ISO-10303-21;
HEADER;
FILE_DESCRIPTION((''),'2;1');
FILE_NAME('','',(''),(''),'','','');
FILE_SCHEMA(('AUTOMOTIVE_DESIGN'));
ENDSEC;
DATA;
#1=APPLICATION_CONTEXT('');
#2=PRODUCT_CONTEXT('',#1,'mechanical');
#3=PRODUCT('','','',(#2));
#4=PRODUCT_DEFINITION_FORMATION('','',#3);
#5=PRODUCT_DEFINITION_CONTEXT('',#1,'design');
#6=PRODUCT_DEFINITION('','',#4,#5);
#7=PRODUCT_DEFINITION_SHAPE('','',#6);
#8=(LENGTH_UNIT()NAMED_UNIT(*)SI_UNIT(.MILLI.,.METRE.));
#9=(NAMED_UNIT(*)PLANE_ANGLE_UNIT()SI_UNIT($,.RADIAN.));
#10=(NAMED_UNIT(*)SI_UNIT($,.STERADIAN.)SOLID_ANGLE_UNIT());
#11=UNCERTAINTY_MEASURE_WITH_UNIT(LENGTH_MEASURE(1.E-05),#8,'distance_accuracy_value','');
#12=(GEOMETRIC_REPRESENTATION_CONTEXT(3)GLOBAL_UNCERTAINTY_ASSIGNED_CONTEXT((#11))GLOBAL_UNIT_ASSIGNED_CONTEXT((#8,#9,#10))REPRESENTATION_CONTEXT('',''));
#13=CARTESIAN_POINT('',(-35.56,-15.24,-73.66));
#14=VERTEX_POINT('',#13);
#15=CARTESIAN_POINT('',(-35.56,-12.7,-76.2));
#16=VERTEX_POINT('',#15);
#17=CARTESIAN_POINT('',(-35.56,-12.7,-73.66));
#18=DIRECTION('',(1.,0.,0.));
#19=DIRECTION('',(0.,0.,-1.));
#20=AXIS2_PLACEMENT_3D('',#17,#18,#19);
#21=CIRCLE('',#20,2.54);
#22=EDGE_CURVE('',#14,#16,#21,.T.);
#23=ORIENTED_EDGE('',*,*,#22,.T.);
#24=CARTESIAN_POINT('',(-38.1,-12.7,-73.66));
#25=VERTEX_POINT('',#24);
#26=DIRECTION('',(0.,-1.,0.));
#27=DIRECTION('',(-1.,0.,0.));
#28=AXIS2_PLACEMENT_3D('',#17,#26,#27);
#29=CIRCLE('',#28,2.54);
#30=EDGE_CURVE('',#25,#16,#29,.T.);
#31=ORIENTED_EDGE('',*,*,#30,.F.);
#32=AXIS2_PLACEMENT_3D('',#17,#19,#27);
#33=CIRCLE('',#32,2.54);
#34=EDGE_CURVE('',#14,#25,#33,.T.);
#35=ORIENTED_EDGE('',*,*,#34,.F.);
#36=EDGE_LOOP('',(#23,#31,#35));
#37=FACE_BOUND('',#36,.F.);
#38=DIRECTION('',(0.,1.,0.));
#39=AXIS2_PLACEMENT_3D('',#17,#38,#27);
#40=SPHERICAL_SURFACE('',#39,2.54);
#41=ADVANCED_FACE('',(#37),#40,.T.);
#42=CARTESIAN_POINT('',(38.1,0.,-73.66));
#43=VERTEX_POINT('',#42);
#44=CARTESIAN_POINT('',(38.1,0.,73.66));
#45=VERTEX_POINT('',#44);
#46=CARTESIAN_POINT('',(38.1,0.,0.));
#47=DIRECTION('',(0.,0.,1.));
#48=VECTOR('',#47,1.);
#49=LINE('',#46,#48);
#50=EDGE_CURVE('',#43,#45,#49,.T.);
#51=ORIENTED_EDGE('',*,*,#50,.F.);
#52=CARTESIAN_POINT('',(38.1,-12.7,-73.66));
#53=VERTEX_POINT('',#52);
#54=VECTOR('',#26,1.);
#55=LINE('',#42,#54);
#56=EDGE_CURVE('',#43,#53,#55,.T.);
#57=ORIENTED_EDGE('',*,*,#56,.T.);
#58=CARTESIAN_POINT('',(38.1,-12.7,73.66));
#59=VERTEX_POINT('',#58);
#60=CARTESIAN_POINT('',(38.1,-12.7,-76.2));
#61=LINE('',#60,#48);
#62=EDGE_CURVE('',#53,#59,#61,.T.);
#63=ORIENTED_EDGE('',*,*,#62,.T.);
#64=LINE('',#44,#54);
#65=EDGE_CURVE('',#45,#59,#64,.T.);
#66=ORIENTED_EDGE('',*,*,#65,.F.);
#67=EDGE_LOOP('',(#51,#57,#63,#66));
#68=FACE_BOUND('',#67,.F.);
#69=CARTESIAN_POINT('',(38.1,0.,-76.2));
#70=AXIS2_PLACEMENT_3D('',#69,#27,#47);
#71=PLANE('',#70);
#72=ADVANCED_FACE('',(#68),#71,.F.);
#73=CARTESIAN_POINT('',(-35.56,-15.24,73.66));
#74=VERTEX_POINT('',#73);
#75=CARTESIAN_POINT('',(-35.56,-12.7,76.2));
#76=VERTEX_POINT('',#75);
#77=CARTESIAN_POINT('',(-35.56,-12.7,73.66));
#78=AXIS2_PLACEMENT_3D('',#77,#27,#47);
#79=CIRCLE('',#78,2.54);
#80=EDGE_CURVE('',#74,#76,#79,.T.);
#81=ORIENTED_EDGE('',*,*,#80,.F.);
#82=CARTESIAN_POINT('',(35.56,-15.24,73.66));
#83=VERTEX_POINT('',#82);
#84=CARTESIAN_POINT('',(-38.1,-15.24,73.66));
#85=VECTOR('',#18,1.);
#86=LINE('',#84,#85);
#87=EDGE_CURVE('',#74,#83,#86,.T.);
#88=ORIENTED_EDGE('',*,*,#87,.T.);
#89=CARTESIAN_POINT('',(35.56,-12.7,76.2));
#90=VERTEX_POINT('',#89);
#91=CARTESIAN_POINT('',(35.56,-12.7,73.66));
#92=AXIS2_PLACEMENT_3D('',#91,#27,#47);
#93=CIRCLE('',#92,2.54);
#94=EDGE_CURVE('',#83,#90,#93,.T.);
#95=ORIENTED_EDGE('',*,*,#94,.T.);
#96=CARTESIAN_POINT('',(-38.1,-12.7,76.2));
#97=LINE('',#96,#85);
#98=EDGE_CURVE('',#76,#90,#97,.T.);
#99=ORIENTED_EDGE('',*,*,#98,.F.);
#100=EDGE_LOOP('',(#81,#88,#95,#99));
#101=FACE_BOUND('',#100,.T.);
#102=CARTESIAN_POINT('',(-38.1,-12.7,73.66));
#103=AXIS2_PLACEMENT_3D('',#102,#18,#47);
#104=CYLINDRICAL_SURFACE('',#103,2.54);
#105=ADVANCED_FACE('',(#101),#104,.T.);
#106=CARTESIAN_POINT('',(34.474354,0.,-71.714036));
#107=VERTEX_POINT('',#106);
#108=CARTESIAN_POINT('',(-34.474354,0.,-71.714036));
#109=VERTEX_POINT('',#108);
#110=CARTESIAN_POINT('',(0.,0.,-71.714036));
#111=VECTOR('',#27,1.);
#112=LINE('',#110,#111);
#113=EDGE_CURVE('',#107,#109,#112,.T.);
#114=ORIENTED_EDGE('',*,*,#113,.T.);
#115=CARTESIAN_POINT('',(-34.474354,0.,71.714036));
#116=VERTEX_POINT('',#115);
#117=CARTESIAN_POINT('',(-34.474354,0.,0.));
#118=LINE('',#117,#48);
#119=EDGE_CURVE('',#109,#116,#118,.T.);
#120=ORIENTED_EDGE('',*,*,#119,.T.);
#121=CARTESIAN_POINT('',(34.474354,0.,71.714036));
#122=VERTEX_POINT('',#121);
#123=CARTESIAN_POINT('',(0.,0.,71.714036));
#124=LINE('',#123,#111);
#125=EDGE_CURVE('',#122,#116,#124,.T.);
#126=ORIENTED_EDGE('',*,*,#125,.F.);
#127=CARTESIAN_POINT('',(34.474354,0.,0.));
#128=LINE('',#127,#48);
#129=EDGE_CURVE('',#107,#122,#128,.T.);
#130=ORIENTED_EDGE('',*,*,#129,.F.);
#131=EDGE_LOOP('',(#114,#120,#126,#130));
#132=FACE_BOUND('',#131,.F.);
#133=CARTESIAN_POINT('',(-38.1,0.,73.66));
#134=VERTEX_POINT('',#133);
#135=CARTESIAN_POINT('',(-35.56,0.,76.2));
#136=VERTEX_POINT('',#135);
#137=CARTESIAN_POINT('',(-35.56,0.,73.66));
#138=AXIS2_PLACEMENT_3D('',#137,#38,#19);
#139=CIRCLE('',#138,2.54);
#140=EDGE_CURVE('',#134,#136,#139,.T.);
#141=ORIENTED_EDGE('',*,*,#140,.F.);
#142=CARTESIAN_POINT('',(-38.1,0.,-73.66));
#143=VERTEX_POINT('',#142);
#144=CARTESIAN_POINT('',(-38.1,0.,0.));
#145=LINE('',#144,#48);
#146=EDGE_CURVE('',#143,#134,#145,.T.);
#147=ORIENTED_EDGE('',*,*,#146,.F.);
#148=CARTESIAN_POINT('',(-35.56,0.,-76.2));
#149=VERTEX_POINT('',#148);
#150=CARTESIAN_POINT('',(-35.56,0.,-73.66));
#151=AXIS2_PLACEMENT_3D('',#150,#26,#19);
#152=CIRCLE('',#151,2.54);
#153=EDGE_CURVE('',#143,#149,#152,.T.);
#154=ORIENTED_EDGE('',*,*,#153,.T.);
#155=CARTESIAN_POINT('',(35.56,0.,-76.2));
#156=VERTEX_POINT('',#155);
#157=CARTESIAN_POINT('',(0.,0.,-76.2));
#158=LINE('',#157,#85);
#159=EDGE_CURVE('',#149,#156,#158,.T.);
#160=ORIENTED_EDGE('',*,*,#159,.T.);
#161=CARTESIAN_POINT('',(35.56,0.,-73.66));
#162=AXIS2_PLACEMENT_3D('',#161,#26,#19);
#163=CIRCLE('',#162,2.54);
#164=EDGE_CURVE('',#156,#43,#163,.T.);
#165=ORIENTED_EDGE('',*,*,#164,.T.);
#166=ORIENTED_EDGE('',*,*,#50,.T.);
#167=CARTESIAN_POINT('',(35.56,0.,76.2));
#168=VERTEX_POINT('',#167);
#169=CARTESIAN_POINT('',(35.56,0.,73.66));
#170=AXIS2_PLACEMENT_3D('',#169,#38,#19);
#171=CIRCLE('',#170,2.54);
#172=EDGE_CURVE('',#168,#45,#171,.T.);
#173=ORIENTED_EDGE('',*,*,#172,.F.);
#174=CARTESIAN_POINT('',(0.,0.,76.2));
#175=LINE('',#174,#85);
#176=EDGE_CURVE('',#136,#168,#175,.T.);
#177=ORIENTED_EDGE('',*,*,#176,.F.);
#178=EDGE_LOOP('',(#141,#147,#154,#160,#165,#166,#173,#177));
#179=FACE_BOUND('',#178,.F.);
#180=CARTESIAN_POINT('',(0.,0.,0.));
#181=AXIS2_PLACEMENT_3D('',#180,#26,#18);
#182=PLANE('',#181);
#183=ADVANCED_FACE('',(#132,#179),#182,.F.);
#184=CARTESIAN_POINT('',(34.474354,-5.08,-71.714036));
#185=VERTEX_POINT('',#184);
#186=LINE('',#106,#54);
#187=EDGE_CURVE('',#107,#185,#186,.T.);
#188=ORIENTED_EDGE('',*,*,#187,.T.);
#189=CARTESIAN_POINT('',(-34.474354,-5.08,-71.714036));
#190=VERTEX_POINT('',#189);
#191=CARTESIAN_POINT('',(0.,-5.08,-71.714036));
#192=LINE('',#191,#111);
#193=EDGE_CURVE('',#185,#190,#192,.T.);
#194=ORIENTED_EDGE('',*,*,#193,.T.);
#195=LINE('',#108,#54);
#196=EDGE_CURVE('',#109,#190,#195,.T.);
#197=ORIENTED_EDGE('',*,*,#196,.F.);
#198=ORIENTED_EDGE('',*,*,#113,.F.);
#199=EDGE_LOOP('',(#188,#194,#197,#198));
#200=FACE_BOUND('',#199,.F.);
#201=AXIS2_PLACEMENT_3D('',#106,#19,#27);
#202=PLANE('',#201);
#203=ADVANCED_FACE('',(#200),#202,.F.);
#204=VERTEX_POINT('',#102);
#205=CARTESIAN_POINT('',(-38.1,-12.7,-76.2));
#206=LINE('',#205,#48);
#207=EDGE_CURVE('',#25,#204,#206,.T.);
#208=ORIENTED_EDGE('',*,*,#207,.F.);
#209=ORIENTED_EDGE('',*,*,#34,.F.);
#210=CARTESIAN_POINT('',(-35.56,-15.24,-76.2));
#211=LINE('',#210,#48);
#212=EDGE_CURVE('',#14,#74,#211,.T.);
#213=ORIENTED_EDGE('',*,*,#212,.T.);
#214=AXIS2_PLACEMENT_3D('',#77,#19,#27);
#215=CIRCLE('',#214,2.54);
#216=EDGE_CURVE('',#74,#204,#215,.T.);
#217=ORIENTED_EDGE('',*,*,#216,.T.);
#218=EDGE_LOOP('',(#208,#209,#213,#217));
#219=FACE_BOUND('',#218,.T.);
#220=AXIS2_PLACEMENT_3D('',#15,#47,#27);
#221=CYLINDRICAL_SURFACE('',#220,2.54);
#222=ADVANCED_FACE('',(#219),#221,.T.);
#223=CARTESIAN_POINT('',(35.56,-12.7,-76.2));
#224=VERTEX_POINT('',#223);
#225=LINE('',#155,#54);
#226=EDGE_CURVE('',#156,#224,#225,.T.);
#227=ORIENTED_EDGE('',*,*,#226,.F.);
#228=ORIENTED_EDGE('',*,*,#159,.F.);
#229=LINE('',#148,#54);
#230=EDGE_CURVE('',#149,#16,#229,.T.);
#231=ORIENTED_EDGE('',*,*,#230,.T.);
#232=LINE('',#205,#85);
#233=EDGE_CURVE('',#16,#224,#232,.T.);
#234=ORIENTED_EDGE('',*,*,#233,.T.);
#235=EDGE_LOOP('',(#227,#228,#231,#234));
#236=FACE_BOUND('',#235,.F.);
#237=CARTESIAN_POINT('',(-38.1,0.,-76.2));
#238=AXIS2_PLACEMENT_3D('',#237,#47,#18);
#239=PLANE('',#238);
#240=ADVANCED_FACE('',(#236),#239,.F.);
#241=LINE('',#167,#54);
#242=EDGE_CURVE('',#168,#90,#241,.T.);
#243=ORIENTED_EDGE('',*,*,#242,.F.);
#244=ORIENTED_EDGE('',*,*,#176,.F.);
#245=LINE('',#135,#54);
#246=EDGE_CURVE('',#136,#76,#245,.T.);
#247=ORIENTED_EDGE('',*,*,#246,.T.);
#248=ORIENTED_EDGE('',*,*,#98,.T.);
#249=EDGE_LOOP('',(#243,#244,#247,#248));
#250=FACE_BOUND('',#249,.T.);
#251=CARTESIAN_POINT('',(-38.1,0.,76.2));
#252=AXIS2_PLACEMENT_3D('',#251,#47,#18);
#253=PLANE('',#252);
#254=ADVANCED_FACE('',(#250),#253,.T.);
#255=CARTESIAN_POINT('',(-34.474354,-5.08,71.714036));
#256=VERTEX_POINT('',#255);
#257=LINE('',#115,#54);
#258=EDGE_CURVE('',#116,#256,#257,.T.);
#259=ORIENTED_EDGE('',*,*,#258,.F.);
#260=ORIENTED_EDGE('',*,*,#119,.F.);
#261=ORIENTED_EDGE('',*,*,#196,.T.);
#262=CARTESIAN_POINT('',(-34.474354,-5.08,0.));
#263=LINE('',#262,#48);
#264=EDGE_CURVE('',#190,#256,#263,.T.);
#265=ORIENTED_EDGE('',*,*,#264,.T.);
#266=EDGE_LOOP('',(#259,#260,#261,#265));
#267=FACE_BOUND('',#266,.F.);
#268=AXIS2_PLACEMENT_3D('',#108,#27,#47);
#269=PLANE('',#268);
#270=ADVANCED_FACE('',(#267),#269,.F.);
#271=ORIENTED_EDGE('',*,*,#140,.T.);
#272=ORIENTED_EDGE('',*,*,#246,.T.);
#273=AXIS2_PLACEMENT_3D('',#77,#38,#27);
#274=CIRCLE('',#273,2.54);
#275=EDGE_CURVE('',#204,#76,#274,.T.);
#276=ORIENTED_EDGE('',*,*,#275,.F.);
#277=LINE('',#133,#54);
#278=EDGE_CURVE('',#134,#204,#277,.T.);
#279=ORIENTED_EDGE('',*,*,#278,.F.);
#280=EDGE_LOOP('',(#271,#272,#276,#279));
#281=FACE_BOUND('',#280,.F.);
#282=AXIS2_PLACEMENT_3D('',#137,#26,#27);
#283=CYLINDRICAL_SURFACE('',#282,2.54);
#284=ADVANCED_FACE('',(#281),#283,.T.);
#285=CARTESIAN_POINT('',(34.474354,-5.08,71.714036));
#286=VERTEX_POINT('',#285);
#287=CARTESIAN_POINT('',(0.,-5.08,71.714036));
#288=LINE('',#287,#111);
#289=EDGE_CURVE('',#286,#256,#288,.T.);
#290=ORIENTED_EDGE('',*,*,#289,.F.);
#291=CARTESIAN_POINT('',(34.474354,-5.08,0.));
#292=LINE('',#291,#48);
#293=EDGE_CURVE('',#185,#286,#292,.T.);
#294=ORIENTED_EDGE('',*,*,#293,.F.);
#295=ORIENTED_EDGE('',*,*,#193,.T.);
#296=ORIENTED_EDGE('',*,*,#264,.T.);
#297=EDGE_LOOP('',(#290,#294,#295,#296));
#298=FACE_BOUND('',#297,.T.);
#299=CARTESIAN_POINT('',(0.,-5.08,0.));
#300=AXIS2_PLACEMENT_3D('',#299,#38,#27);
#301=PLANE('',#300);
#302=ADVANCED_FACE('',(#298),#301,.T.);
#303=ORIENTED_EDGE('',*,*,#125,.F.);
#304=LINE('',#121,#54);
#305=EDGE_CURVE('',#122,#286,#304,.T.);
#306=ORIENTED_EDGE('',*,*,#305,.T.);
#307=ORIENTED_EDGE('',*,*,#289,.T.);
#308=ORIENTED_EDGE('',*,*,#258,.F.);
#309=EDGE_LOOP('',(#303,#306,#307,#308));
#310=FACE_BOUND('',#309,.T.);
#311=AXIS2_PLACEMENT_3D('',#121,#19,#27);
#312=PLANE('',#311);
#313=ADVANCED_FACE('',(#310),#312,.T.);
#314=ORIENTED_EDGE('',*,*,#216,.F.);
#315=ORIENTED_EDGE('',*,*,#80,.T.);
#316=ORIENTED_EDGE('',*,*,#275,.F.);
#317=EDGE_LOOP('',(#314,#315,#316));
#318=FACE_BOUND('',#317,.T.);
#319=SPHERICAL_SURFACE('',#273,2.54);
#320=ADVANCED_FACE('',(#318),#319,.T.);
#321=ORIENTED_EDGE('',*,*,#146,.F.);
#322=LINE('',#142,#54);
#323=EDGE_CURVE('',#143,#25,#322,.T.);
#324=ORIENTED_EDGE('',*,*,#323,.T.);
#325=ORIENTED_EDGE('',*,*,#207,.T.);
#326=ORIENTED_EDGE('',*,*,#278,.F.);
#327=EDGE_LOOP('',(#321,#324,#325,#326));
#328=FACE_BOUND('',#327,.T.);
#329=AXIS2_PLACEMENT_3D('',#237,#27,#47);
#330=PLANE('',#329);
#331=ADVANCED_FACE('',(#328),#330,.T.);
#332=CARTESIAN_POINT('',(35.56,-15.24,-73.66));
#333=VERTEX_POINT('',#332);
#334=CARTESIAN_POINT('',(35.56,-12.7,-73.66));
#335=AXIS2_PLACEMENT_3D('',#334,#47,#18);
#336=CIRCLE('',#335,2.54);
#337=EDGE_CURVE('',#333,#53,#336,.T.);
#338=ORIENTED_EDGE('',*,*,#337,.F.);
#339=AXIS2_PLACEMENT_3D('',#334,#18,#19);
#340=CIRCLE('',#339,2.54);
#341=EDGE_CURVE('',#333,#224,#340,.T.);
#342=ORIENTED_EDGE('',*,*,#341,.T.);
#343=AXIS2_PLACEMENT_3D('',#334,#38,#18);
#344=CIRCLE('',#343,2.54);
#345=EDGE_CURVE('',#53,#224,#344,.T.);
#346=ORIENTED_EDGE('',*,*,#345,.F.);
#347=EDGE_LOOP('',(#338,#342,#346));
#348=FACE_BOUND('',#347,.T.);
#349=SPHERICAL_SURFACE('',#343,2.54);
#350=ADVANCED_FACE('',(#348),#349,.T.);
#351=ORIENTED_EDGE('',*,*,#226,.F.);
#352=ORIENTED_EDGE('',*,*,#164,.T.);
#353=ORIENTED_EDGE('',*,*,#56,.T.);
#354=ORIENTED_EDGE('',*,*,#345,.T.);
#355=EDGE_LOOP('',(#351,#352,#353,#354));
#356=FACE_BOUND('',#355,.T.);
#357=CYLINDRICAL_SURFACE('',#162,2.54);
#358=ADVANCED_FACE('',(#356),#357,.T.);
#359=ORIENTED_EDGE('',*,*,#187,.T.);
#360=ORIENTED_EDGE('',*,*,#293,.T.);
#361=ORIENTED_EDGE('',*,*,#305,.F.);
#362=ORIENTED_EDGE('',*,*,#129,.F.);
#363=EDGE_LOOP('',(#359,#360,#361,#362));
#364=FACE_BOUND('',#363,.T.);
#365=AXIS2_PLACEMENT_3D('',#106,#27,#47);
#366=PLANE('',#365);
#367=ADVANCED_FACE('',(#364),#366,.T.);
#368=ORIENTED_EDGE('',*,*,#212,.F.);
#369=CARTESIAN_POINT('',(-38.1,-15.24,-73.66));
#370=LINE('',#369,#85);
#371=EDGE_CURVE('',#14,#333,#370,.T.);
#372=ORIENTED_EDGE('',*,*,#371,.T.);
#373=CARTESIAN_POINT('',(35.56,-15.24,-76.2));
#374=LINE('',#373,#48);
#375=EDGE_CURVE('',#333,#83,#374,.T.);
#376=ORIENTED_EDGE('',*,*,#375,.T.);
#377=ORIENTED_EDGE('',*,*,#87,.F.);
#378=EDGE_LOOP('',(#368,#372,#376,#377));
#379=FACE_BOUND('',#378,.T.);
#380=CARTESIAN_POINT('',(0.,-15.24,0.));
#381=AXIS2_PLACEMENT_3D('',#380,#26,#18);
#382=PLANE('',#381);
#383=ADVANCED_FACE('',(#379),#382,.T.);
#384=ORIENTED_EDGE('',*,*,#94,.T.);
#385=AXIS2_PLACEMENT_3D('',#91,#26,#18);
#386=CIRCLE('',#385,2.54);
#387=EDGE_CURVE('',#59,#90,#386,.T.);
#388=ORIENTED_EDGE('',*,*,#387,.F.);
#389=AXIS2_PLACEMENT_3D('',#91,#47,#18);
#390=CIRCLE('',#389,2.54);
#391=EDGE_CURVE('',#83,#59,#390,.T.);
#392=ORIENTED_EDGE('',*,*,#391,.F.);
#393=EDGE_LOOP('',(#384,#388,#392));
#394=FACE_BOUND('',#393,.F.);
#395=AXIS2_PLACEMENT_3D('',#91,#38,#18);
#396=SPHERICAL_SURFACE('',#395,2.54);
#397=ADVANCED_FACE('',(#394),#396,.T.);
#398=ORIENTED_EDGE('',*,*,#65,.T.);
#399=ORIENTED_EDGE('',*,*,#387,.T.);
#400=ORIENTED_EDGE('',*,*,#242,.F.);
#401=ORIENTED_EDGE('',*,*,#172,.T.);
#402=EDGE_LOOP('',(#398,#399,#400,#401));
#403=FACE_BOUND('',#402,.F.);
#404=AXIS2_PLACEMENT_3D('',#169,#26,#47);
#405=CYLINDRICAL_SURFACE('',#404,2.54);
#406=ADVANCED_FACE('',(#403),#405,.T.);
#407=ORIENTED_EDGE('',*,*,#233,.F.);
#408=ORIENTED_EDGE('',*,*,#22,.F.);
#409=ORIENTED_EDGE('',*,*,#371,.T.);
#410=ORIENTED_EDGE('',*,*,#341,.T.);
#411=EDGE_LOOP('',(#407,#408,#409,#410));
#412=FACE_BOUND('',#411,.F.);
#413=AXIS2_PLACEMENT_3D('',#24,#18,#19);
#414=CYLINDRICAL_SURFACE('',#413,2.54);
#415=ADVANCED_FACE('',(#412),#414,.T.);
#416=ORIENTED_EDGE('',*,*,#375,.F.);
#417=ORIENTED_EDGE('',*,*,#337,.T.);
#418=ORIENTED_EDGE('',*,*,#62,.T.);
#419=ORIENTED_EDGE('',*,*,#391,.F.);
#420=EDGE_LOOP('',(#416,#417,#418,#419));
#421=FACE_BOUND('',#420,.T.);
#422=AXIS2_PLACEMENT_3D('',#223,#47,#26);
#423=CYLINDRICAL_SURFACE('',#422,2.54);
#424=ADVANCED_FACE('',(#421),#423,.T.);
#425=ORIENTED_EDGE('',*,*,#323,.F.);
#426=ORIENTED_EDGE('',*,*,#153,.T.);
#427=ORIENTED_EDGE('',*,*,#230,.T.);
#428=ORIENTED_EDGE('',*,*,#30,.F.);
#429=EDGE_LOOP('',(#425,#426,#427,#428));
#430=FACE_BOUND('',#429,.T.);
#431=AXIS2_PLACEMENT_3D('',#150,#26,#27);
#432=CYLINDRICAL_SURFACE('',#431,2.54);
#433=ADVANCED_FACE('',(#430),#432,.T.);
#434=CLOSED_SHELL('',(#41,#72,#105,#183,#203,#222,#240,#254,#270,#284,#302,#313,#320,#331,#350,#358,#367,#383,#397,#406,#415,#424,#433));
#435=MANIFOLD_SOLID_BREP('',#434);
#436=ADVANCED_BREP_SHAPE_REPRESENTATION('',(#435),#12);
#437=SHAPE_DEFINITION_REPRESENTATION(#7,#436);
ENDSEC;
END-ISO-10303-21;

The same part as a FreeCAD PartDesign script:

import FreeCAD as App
import Part
import Sketcher

V = App.Vector
Q = App.Units.Quantity


def edges_at(feature, points):
    """Names of the edges that pass closest to the given points."""
    edges = feature.Shape.Edges
    near = lambda p: min(range(len(edges)), key=lambda i: edges[i].distToShape(Part.Vertex(*p))[0])
    return sorted({f"Edge{near(p) + 1}" for p in points})

doc = App.newDocument("Part")
body = doc.addObject("PartDesign::Body", "Body")

# Sketch on XZ plane
sketch1 = body.newObject("Sketcher::SketchObject", "Sketch")
sketch1.AttachmentSupport = (doc.getObject("XZ_Plane"), [""])
sketch1.MapMode = "FlatFace"
sketch1.addGeometry([
    Part.LineSegment(V(-38, 76, 0), V(-38, -76, 0)),
    Part.LineSegment(V(-38, -76, 0), V(38, -76, 0)),
    Part.LineSegment(V(38, -76, 0), V(38, 76, 0)),
    Part.LineSegment(V(38, 76, 0), V(-38, 76, 0)),
], False)
sketch1.addConstraint([
    Sketcher.Constraint("Coincident", 0, 2, 1, 1),
    Sketcher.Constraint("Coincident", 1, 2, 2, 1),
    Sketcher.Constraint("Coincident", 2, 2, 3, 1),
    Sketcher.Constraint("Coincident", 3, 2, 0, 1),
    Sketcher.Constraint("Vertical", 0),
    Sketcher.Constraint("Horizontal", 1),
    Sketcher.Constraint("Vertical", 2),
    Sketcher.Constraint("Horizontal", 3),
    Sketcher.Constraint("Symmetric", 0, 2, 2, 2, -1, 1),
    Sketcher.Constraint("DistanceX", 1, 1, 1, 2, Q("3 in")),
    Sketcher.Constraint("DistanceY", 0, 2, 0, 1, Q("6 in")),
])
pad1 = body.newObject("PartDesign::Pad", "Pad")
pad1.Profile = sketch1
pad1.Length = Q("0.6 in")

# Sketch on XZ plane
sketch2 = body.newObject("Sketcher::SketchObject", "Sketch001")
sketch2.AttachmentSupport = (doc.getObject("XZ_Plane"), [""])
sketch2.MapMode = "FlatFace"
sketch2.addGeometry([
    Part.LineSegment(V(34, 72, 0), V(34, -72, 0)),
    Part.LineSegment(V(34, -72, 0), V(-34, -72, 0)),
    Part.LineSegment(V(-34, -72, 0), V(-34, 72, 0)),
    Part.LineSegment(V(-34, 72, 0), V(34, 72, 0)),
], False)
sketch2.addConstraint([
    Sketcher.Constraint("Coincident", 0, 2, 1, 1),
    Sketcher.Constraint("Coincident", 1, 2, 2, 1),
    Sketcher.Constraint("Coincident", 2, 2, 3, 1),
    Sketcher.Constraint("Coincident", 3, 2, 0, 1),
    Sketcher.Constraint("Vertical", 0),
    Sketcher.Constraint("Horizontal", 1),
    Sketcher.Constraint("Vertical", 2),
    Sketcher.Constraint("Horizontal", 3),
    Sketcher.Constraint("Symmetric", 0, 2, 2, 2, -1, 1),
    Sketcher.Constraint("DistanceY", 0, 2, 0, 1, Q("143.428072 mm")),
    Sketcher.Constraint("DistanceX", 1, 2, 1, 1, Q("68.948708 mm")),
])
pocket1 = body.newObject("PartDesign::Pocket", "Pocket")
pocket1.Profile = sketch2
pocket1.Length = Q("0.2 in")
pocket1.Reversed = True
doc.recompute()

fillet = body.newObject("PartDesign::Fillet", "Fillet")
fillet.Base = (pocket1, edges_at(pocket1, [
    (-38.1, -7.62, -76.2),
    (38.1, -7.62, -76.2),
    (38.1, -7.62, 76.2),
    (-38.1, -7.62, 76.2),
    (-38.1, -15.24, 0),
    (38.1, -15.24, 0),
    (0, -15.24, 76.2),
    (0, -15.24, -76.2),
]))
fillet.Radius = Q("0.1 in")

doc.recompute()
